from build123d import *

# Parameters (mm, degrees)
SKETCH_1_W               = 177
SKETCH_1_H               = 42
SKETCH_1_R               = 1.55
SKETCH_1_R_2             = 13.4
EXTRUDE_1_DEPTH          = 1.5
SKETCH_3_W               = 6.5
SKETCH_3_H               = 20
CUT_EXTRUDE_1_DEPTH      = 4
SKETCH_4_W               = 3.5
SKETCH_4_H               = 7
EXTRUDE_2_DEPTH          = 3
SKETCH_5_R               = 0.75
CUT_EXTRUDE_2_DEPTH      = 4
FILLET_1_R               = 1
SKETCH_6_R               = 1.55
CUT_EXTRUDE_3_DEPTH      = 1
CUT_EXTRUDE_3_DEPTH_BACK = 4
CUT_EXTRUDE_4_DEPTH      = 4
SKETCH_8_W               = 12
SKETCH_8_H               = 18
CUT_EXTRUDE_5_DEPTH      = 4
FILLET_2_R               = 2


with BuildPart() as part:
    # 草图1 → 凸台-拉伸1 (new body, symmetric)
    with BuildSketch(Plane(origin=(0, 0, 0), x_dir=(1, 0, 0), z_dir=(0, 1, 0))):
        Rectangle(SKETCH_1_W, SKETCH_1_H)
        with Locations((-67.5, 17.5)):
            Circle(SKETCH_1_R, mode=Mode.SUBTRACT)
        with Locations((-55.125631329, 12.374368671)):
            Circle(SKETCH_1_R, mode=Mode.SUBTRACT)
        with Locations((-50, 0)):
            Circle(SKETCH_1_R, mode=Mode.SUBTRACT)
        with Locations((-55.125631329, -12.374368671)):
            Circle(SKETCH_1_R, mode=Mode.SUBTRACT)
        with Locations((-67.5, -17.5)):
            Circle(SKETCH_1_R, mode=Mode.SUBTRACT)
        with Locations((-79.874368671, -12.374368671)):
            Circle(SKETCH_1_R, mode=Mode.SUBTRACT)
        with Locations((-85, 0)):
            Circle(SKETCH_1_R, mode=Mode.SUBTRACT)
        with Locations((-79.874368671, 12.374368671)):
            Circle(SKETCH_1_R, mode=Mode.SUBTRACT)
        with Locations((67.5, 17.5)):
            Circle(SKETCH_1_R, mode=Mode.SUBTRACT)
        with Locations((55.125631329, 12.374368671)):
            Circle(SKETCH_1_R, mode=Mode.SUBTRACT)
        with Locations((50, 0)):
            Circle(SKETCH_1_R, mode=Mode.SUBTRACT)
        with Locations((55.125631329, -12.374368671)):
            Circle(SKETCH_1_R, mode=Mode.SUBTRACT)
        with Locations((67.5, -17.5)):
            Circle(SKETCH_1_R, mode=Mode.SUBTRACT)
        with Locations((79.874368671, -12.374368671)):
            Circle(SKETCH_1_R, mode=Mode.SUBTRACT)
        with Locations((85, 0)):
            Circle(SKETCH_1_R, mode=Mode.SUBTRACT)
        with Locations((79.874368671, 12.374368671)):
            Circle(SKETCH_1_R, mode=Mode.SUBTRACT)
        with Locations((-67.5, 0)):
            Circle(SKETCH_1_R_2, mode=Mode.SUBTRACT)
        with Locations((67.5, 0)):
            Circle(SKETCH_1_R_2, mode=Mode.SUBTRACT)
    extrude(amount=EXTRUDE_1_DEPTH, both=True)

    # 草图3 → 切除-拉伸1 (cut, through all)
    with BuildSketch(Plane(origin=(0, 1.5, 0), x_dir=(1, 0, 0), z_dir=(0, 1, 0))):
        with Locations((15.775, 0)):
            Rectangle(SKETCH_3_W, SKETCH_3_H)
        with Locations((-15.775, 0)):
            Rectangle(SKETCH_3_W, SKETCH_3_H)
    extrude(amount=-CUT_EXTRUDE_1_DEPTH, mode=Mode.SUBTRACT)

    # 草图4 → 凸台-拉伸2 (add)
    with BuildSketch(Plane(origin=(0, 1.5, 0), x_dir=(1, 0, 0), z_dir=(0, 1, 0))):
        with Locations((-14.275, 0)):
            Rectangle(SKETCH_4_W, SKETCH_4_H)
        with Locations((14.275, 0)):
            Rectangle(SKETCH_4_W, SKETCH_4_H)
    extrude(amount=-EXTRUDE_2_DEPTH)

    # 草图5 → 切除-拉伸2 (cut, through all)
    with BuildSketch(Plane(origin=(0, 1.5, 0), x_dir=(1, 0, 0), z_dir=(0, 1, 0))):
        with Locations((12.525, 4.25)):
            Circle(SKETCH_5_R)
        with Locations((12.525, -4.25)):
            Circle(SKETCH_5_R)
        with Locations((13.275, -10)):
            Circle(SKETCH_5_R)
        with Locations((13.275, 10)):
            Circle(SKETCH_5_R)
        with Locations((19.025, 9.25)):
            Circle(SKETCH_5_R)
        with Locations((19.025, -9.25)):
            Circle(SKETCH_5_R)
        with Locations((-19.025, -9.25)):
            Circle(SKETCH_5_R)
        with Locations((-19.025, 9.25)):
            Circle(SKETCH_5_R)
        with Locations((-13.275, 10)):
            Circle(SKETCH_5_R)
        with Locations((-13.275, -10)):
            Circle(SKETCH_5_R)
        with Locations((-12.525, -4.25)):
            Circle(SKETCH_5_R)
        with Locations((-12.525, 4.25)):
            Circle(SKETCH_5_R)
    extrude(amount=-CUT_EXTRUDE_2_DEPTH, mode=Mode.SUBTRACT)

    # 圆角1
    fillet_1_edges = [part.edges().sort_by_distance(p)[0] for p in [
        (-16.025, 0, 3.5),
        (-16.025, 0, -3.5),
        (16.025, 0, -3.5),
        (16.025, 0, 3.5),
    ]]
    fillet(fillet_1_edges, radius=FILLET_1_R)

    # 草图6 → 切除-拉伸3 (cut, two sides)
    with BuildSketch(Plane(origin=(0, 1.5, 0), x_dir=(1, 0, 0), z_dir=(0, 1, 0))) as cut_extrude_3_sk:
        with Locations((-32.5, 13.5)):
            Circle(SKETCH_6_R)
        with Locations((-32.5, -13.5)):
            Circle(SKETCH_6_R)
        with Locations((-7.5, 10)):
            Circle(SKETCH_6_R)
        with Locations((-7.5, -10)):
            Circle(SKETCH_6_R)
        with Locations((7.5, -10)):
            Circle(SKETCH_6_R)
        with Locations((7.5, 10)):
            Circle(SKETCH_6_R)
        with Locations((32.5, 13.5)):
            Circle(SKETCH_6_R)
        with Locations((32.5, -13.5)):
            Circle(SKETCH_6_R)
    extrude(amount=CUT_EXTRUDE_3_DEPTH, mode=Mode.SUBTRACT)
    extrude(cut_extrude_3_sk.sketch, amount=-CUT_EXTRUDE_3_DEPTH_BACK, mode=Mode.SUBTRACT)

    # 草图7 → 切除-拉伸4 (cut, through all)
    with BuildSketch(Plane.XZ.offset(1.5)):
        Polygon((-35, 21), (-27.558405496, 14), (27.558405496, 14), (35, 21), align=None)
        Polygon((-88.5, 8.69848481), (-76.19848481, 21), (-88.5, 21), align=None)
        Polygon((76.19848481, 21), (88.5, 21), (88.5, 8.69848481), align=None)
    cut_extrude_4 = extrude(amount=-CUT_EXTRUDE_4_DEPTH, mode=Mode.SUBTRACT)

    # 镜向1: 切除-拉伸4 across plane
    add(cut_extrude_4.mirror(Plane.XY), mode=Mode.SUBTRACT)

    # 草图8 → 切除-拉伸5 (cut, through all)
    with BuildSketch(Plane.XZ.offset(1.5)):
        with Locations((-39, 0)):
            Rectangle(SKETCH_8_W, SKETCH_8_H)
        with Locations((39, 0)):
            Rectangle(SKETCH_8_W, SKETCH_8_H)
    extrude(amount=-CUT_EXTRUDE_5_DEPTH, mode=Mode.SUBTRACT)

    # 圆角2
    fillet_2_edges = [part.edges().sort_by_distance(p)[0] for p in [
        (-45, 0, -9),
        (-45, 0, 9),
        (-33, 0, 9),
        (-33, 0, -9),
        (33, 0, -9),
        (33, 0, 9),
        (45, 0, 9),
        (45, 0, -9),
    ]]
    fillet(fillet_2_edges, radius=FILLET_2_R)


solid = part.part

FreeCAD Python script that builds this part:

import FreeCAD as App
import Part
import Sketcher

V = App.Vector
Q = App.Units.Quantity


def edges_at(feature, points):
    """Names of the edges that pass closest to the given points."""
    edges = feature.Shape.Edges
    near = lambda p: min(range(len(edges)), key=lambda i: edges[i].distToShape(Part.Vertex(*p))[0])
    return sorted({f"Edge{near(p) + 1}" for p in points})

doc = App.newDocument("Part")
params = doc.addObject("Spreadsheet::Sheet", "Params")
for row, (alias, value) in enumerate([
    ("sketch1_diameter", "3.1 mm"),
    ("sketch1_diameter2", "26.8 mm"),
    ("sketch1_width", "177 mm"),
    ("sketch1_height", "42 mm"),
    ("pad1_length", "3 mm"),
    ("sketch2_height", "20 mm"),
    ("sketch2_width", "6.5 mm"),
    ("sketch3_height", "7 mm"),
    ("sketch3_width", "3.5 mm"),
    ("pad2_length", "3 mm"),
    ("sketch4_diameter", "1.5 mm"),
    ("fillet_radius", "1 mm"),
    ("sketch5_diameter", "3.1 mm"),
    ("sketch6_width", "70 mm"),
    ("sketch7_width", "12 mm"),
    ("sketch7_height", "18 mm"),
    ("fillet2_radius", "2 mm"),
], start=1):
    params.set(f"A{row}", alias)
    params.set(f"B{row}", "=" + value)
    params.setAlias(f"B{row}", alias)

body = doc.addObject("PartDesign::Body", "Body")

# Sketch on XZ plane
sketch1 = body.newObject("Sketcher::SketchObject", "Sketch")
sketch1.AttachmentSupport = (doc.getObject("XZ_Plane"), [""])
sketch1.MapMode = "FlatFace"
sketch1.addGeometry([
    Part.LineSegment(V(-88.5, -21, 0), V(-88.5, 21, 0)),  # 0
    Part.LineSegment(V(-88.5, 21, 0), V(88.5, 21, 0)),  # 1
    Part.LineSegment(V(88.5, 21, 0), V(88.5, -21, 0)),  # 2
    Part.LineSegment(V(88.5, -21, 0), V(-88.5, -21, 0)),  # 3
    Part.Circle(V(-67.5, 17.5, 0), V(0, 0, 1), 1.55),  # 4
    Part.Circle(V(-79.874369, 12.374369, 0), V(0, 0, 1), 1.55),  # 5
    Part.Circle(V(-55.125631, 12.374369, 0), V(0, 0, 1), 1.55),  # 6
    Part.Circle(V(67.5, 17.5, 0), V(0, 0, 1), 1.55),  # 7
    Part.Circle(V(55.125631, 12.374369, 0), V(0, 0, 1), 1.55),  # 8
    Part.Circle(V(79.874369, 12.374369, 0), V(0, 0, 1), 1.55),  # 9
    Part.Circle(V(-85, 0, 0), V(0, 0, 1), 1.55),  # 10
    Part.Circle(V(-67.5, 0, 0), V(0, 0, 1), 13.4),  # 11
    Part.Circle(V(-50, 0, 0), V(0, 0, 1), 1.55),  # 12
    Part.Circle(V(-79.874369, -12.374369, 0), V(0, 0, 1), 1.55),  # 13
    Part.Circle(V(-55.125631, -12.374369, 0), V(0, 0, 1), 1.55),  # 14
    Part.Circle(V(-67.5, -17.5, 0), V(0, 0, 1), 1.55),  # 15
    Part.Circle(V(50, 0, 0), V(0, 0, 1), 1.55),  # 16
    Part.Circle(V(67.5, 0, 0), V(0, 0, 1), 13.4),  # 17
    Part.Circle(V(85, 0, 0), V(0, 0, 1), 1.55),  # 18
    Part.Circle(V(55.125631, -12.374369, 0), V(0, 0, 1), 1.55),  # 19
    Part.Circle(V(79.874369, -12.374369, 0), V(0, 0, 1), 1.55),  # 20
    Part.Circle(V(67.5, -17.5, 0), V(0, 0, 1), 1.55),  # 21
], False)
sketch1.addConstraint([
    Sketcher.Constraint("Coincident", 0, 2, 1, 1),
    Sketcher.Constraint("Coincident", 1, 2, 2, 1),
    Sketcher.Constraint("Coincident", 2, 2, 3, 1),
    Sketcher.Constraint("Coincident", 3, 2, 0, 1),
    Sketcher.Constraint("Vertical", 0),
    Sketcher.Constraint("Horizontal", 1),
    Sketcher.Constraint("Vertical", 2),
    Sketcher.Constraint("Horizontal", 3),
    Sketcher.Constraint("Equal", 4, 5),
    Sketcher.Constraint("Equal", 5, 6),
    Sketcher.Constraint("Equal", 6, 7),
    Sketcher.Constraint("Equal", 7, 8),
    Sketcher.Constraint("Equal", 8, 9),
    Sketcher.Constraint("Equal", 9, 10),
    Sketcher.Constraint("Equal", 10, 12),
    Sketcher.Constraint("Equal", 12, 13),
    Sketcher.Constraint("Equal", 13, 14),
    Sketcher.Constraint("Equal", 14, 15),
    Sketcher.Constraint("Equal", 15, 16),
    Sketcher.Constraint("Equal", 11, 17),
    Sketcher.Constraint("Equal", 16, 18),
    Sketcher.Constraint("Equal", 18, 19),
    Sketcher.Constraint("Equal", 19, 20),
    Sketcher.Constraint("Equal", 20, 21),
    Sketcher.Constraint("Symmetric", 9, 3, 13, 3, -1, 1),
    Sketcher.Constraint("Symmetric", 8, 3, 14, 3, -1, 1),
    Sketcher.Constraint("Symmetric", 7, 3, 15, 3, -1, 1),
    Sketcher.Constraint("Symmetric", 12, 3, 16, 3, -1, 1),
    Sketcher.Constraint("Symmetric", 11, 3, 17, 3, -1, 1),
    Sketcher.Constraint("Symmetric", 10, 3, 18, 3, -1, 1),
    Sketcher.Constraint("Symmetric", 6, 3, 19, 3, -1, 1),
    Sketcher.Constraint("Symmetric", 5, 3, 20, 3, -1, 1),
    Sketcher.Constraint("Symmetric", 4, 3, 21, 3, -1, 1),
    Sketcher.Constraint("Symmetric", 0, 2, 2, 2, -1, 1),
    Sketcher.Constraint("Symmetric", 4, 3, 7, 3, -2),
    Sketcher.Constraint("Symmetric", 6, 3, 8, 3, -2),
    Sketcher.Constraint("Symmetric", 5, 3, 9, 3, -2),
    Sketcher.Constraint("PointOnObject", 10, 3, -1),
    Sketcher.Constraint("PointOnObject", 11, 3, -1),
    Sketcher.Constraint("PointOnObject", 12, 3, -1),
    Sketcher.Constraint("Horizontal", 5, 3, 6, 3),
    Sketcher.Constraint("Vertical", 4, 3, 11, 3),
    Sketcher.Constraint("Diameter", 4, Q("3.1 mm")),
    Sketcher.Constraint("Diameter", 11, Q("26.8 mm")),
    Sketcher.Constraint("DistanceX", 1, 1, 1, 2, Q("177 mm")),
    Sketcher.Constraint("DistanceY", 0, 1, 0, 2, Q("42 mm")),
    Sketcher.Constraint("DistanceX", 10, 3, -1, 1, Q("85 mm")),
    Sketcher.Constraint("DistanceX", 12, 3, -1, 1, Q("50 mm")),
    Sketcher.Constraint("DistanceX", 4, 3, 7, 3, Q("135 mm")),
    Sketcher.Constraint("DistanceX", 5, 3, 8, 3, Q("135 mm")),
    Sketcher.Constraint("DistanceY", -1, 1, 4, 3, Q("17.5 mm")),
    Sketcher.Constraint("DistanceX", 5, 3, -1, 1, Q("79.874369 mm")),
    Sketcher.Constraint("DistanceY", -1, 1, 5, 3, Q("12.374369 mm")),
])
sketch1.setExpression("Constraints[42]", "Params.sketch1_diameter")
sketch1.setExpression("Constraints[43]", "Params.sketch1_diameter2")
sketch1.setExpression("Constraints[44]", "Params.sketch1_width")
sketch1.setExpression("Constraints[45]", "Params.sketch1_height")
pad1 = body.newObject("PartDesign::Pad", "Pad")
pad1.Profile = sketch1
pad1.setExpression("Length", "Params.pad1_length")
pad1.Midplane = True

# Sketch on XZ plane
sketch2 = body.newObject("Sketcher::SketchObject", "Sketch001")
sketch2.AttachmentSupport = (doc.getObject("XZ_Plane"), [""])
sketch2.MapMode = "FlatFace"
sketch2.AttachmentOffset = App.Placement(V(0, 0, -1.5), App.Rotation())
sketch2.addGeometry([
    Part.LineSegment(V(12.525, -10, 0), V(12.525, 10, 0)),  # 0
    Part.LineSegment(V(12.525, 10, 0), V(19.025, 10, 0)),  # 1
    Part.LineSegment(V(19.025, 10, 0), V(19.025, -10, 0)),  # 2
    Part.LineSegment(V(19.025, -10, 0), V(12.525, -10, 0)),  # 3
    Part.LineSegment(V(-19.025, -10, 0), V(-19.025, 10, 0)),  # 4
    Part.LineSegment(V(-19.025, 10, 0), V(-12.525, 10, 0)),  # 5
    Part.LineSegment(V(-12.525, 10, 0), V(-12.525, -10, 0)),  # 6
    Part.LineSegment(V(-12.525, -10, 0), V(-19.025, -10, 0)),  # 7
], False)
sketch2.addConstraint([
    Sketcher.Constraint("Coincident", 0, 2, 1, 1),
    Sketcher.Constraint("Coincident", 1, 2, 2, 1),
    Sketcher.Constraint("Coincident", 2, 2, 3, 1),
    Sketcher.Constraint("Coincident", 3, 2, 0, 1),
    Sketcher.Constraint("Coincident", 4, 2, 5, 1),
    Sketcher.Constraint("Coincident", 5, 2, 6, 1),
    Sketcher.Constraint("Coincident", 6, 2, 7, 1),
    Sketcher.Constraint("Coincident", 7, 2, 4, 1),
    Sketcher.Constraint("Vertical", 0),
    Sketcher.Constraint("Horizontal", 1),
    Sketcher.Constraint("Vertical", 2),
    Sketcher.Constraint("Horizontal", 3),
    Sketcher.Constraint("Vertical", 4),
    Sketcher.Constraint("Horizontal", 5),
    Sketcher.Constraint("Vertical", 6),
    Sketcher.Constraint("Horizontal", 7),
    Sketcher.Constraint("Symmetric", 2, 2, 4, 2, -1, 1),
    Sketcher.Constraint("Symmetric", 0, 2, 6, 2, -1, 1),
    Sketcher.Constraint("Horizontal", 1, 2, 4, 2),
    Sketcher.Constraint("DistanceY", 0, 1, 0, 2, Q("20 mm")),
    Sketcher.Constraint("DistanceX", 1, 1, 1, 2, Q("6.5 mm")),
    Sketcher.Constraint("DistanceX", 4, 2, 0, 2, Q("31.55 mm")),
])
sketch2.setExpression("Constraints[19]", "Params.sketch2_height")
sketch2.setExpression("Constraints[20]", "Params.sketch2_width")
pocket1 = body.newObject("PartDesign::Pocket", "Pocket")
pocket1.Profile = sketch2
pocket1.Type = "ThroughAll"
pocket1.Reversed = True

# Sketch on XZ plane
sketch3 = body.newObject("Sketcher::SketchObject", "Sketch002")
sketch3.AttachmentSupport = (doc.getObject("XZ_Plane"), [""])
sketch3.MapMode = "FlatFace"
sketch3.AttachmentOffset = App.Placement(V(0, 0, -1.5), App.Rotation())
sketch3.addGeometry([
    Part.LineSegment(V(-16.025, -3.5, 0), V(-16.025, 3.5, 0)),  # 0
    Part.LineSegment(V(-16.025, 3.5, 0), V(-12.525, 3.5, 0)),  # 1
    Part.LineSegment(V(-12.525, 3.5, 0), V(-12.525, -3.5, 0)),  # 2
    Part.LineSegment(V(-12.525, -3.5, 0), V(-16.025, -3.5, 0)),  # 3
    Part.LineSegment(V(12.525, -3.5, 0), V(12.525, 3.5, 0)),  # 4
    Part.LineSegment(V(12.525, 3.5, 0), V(16.025, 3.5, 0)),  # 5
    Part.LineSegment(V(16.025, 3.5, 0), V(16.025, -3.5, 0)),  # 6
    Part.LineSegment(V(16.025, -3.5, 0), V(12.525, -3.5, 0)),  # 7
], False)
sketch3.addConstraint([
    Sketcher.Constraint("Coincident", 0, 2, 1, 1),
    Sketcher.Constraint("Coincident", 1, 2, 2, 1),
    Sketcher.Constraint("Coincident", 2, 2, 3, 1),
    Sketcher.Constraint("Coincident", 3, 2, 0, 1),
    Sketcher.Constraint("Coincident", 4, 2, 5, 1),
    Sketcher.Constraint("Coincident", 5, 2, 6, 1),
    Sketcher.Constraint("Coincident", 6, 2, 7, 1),
    Sketcher.Constraint("Coincident", 7, 2, 4, 1),
    Sketcher.Constraint("Vertical", 0),
    Sketcher.Constraint("Horizontal", 1),
    Sketcher.Constraint("Vertical", 2),
    Sketcher.Constraint("Horizontal", 3),
    Sketcher.Constraint("Vertical", 4),
    Sketcher.Constraint("Horizontal", 5),
    Sketcher.Constraint("Vertical", 6),
    Sketcher.Constraint("Horizontal", 7),
    Sketcher.Constraint("Symmetric", 2, 2, 4, 2, -1, 1),
    Sketcher.Constraint("Symmetric", 0, 2, 6, 2, -1, 1),
    Sketcher.Constraint("Horizontal", 1, 2, 4, 2),
    Sketcher.Constraint("DistanceY", 0, 1, 0, 2, Q("7 mm")),
    Sketcher.Constraint("DistanceX", 1, 1, 1, 2, Q("3.5 mm")),
    Sketcher.Constraint("DistanceX", 1, 2, 4, 2, Q("25.05 mm")),
])
sketch3.setExpression("Constraints[19]", "Params.sketch3_height")
sketch3.setExpression("Constraints[20]", "Params.sketch3_width")
pad2 = body.newObject("PartDesign::Pad", "Pad001")
pad2.Profile = sketch3
pad2.setExpression("Length", "Params.pad2_length")

# Sketch on XZ plane
sketch4 = body.newObject("Sketcher::SketchObject", "Sketch003")
sketch4.AttachmentSupport = (doc.getObject("XZ_Plane"), [""])
sketch4.MapMode = "FlatFace"
sketch4.AttachmentOffset = App.Placement(V(0, 0, -1.5), App.Rotation())
sketch4.addGeometry([
    Part.Circle(V(12.525, -4.25, 0), V(0, 0, 1), 0.75),  # 0
    Part.Circle(V(12.525, 4.25, 0), V(0, 0, 1), 0.75),  # 1
    Part.Circle(V(13.275, 10, 0), V(0, 0, 1), 0.75),  # 2
    Part.Circle(V(13.275, -10, 0), V(0, 0, 1), 0.75),  # 3
    Part.Circle(V(19.025, -9.25, 0), V(0, 0, 1), 0.75),  # 4
    Part.Circle(V(19.025, 9.25, 0), V(0, 0, 1), 0.75),  # 5
    Part.Circle(V(-19.025, 9.25, 0), V(0, 0, 1), 0.75),  # 6
    Part.Circle(V(-19.025, -9.25, 0), V(0, 0, 1), 0.75),  # 7
    Part.Circle(V(-13.275, -10, 0), V(0, 0, 1), 0.75),  # 8
    Part.Circle(V(-13.275, 10, 0), V(0, 0, 1), 0.75),  # 9
    Part.Circle(V(-12.525, 4.25, 0), V(0, 0, 1), 0.75),  # 10
    Part.Circle(V(-12.525, -4.25, 0), V(0, 0, 1), 0.75),  # 11
], False)
sketch4.addConstraint([
    Sketcher.Constraint("Equal", 0, 1),
    Sketcher.Constraint("Equal", 1, 2),
    Sketcher.Constraint("Equal", 2, 3),
    Sketcher.Constraint("Equal", 3, 4),
    Sketcher.Constraint("Equal", 4, 5),
    Sketcher.Constraint("Equal", 5, 6),
    Sketcher.Constraint("Equal", 6, 7),
    Sketcher.Constraint("Equal", 7, 8),
    Sketcher.Constraint("Equal", 8, 9),
    Sketcher.Constraint("Equal", 9, 10),
    Sketcher.Constraint("Equal", 10, 11),
    Sketcher.Constraint("Symmetric", 4, 3, 6, 3, -1, 1),
    Sketcher.Constraint("Symmetric", 5, 3, 7, 3, -1, 1),
    Sketcher.Constraint("Symmetric", 2, 3, 8, 3, -1, 1),
    Sketcher.Constraint("Symmetric", 3, 3, 9, 3, -1, 1),
    Sketcher.Constraint("Symmetric", 0, 3, 10, 3, -1, 1),
    Sketcher.Constraint("Symmetric", 1, 3, 11, 3, -1, 1),
    Sketcher.Constraint("Symmetric", 5, 3, 6, 3, -2),
    Sketcher.Constraint("Symmetric", 3, 3, 8, 3, -2),
    Sketcher.Constraint("Symmetric", 1, 3, 10, 3, -2),
    Sketcher.Constraint("Diameter", 0, Q("1.5 mm")),
    Sketcher.Constraint("DistanceY", -1, 1, 2, 3, Q("10 mm")),
    Sketcher.Constraint("DistanceY", 4, 3, 0, 3, Q("5 mm")),
    Sketcher.Constraint("DistanceY", 0, 3, 1, 3, Q("8.5 mm")),
    Sketcher.Constraint("DistanceX", 0, 3, 4, 3, Q("6.5 mm")),
    Sketcher.Constraint("DistanceX", 6, 3, 2, 3, Q("32.3 mm")),
    Sketcher.Constraint("DistanceX", 1, 3, 2, 3, Q("0.75 mm")),
])
sketch4.setExpression("Constraints[20]", "Params.sketch4_diameter")
pocket2 = body.newObject("PartDesign::Pocket", "Pocket001")
pocket2.Profile = sketch4
pocket2.Type = "ThroughAll"
pocket2.Reversed = True
doc.recompute()

fillet = body.newObject("PartDesign::Fillet", "Fillet")
fillet.Base = (pocket2, edges_at(pocket2, [
    (-16.025, 0, 3.5),
    (-16.025, 0, -3.5),
    (16.025, 0, -3.5),
    (16.025, 0, 3.5),
]))
fillet.setExpression("Radius", "Params.fillet_radius")

# Sketch on XZ plane
sketch5 = body.newObject("Sketcher::SketchObject", "Sketch004")
sketch5.AttachmentSupport = (doc.getObject("XZ_Plane"), [""])
sketch5.MapMode = "FlatFace"
sketch5.AttachmentOffset = App.Placement(V(0, 0, -1.5), App.Rotation())
sketch5.addGeometry([
    Part.Circle(V(-32.5, -13.5, 0), V(0, 0, 1), 1.55),  # 0
    Part.Circle(V(-32.5, 13.5, 0), V(0, 0, 1), 1.55),  # 1
    Part.Circle(V(-7.5, -10, 0), V(0, 0, 1), 1.55),  # 2
    Part.Circle(V(-7.5, 10, 0), V(0, 0, 1), 1.55),  # 3
    Part.Circle(V(7.5, 10, 0), V(0, 0, 1), 1.55),  # 4
    Part.Circle(V(7.5, -10, 0), V(0, 0, 1), 1.55),  # 5
    Part.Circle(V(32.5, -13.5, 0), V(0, 0, 1), 1.55),  # 6
    Part.Circle(V(32.5, 13.5, 0), V(0, 0, 1), 1.55),  # 7
], False)
sketch5.addConstraint([
    Sketcher.Constraint("Equal", 0, 1),
    Sketcher.Constraint("Equal", 1, 2),
    Sketcher.Constraint("Equal", 2, 3),
    Sketcher.Constraint("Equal", 3, 4),
    Sketcher.Constraint("Equal", 4, 5),
    Sketcher.Constraint("Equal", 5, 6),
    Sketcher.Constraint("Equal", 6, 7),
    Sketcher.Constraint("Symmetric", 2, 3, 4, 3, -1, 1),
    Sketcher.Constraint("Symmetric", 3, 3, 5, 3, -1, 1),
    Sketcher.Constraint("Symmetric", 1, 3, 6, 3, -1, 1),
    Sketcher.Constraint("Symmetric", 0, 3, 7, 3, -1, 1),
    Sketcher.Constraint("Symmetric", 3, 3, 4, 3, -2),
    Sketcher.Constraint("Symmetric", 0, 3, 6, 3, -2),
    Sketcher.Constraint("Diameter", 0, Q("3.1 mm")),
    Sketcher.Constraint("DistanceY", 2, 3, -1, 1, Q("10 mm")),
    Sketcher.Constraint("DistanceY", 0, 3, 1, 3, Q("27 mm")),
    Sketcher.Constraint("DistanceX", 0, 3, 2, 3, Q("25 mm")),
    Sketcher.Constraint("DistanceX", 3, 3, 4, 3, Q("15 mm")),
])
sketch5.setExpression("Constraints[13]", "Params.sketch5_diameter")
pocket3 = body.newObject("PartDesign::Pocket", "Pocket002")
pocket3.Profile = sketch5
pocket3.Type = "ThroughAll"
pocket3.Midplane = True

# Sketch on XZ plane
sketch6 = body.newObject("Sketcher::SketchObject", "Sketch005")
sketch6.AttachmentSupport = (doc.getObject("XZ_Plane"), [""])
sketch6.MapMode = "FlatFace"
sketch6.AttachmentOffset = App.Placement(V(0, 0, 1.5), App.Rotation())
sketch6.addGeometry([
    Part.LineSegment(V(-35, 21, 0), V(-27.558405, 14, 0)),  # 0
    Part.LineSegment(V(-27.558405, 14, 0), V(27.558405, 14, 0)),  # 1
    Part.LineSegment(V(27.558405, 14, 0), V(35, 21, 0)),  # 2
    Part.LineSegment(V(35, 21, 0), V(-35, 21, 0)),  # 3
    Part.LineSegment(V(-88.5, 8.698485, 0), V(-76.198485, 21, 0)),  # 4
    Part.LineSegment(V(-76.198485, 21, 0), V(-88.5, 21, 0)),  # 5
    Part.LineSegment(V(-88.5, 21, 0), V(-88.5, 8.698485, 0)),  # 6
    Part.LineSegment(V(88.5, 21, 0), V(76.198485, 21, 0)),  # 7
    Part.LineSegment(V(76.198485, 21, 0), V(88.5, 8.698485, 0)),  # 8
    Part.LineSegment(V(88.5, 8.698485, 0), V(88.5, 21, 0)),  # 9
], False)
sketch6.addConstraint([
    Sketcher.Constraint("Coincident", 0, 2, 1, 1),
    Sketcher.Constraint("Coincident", 1, 2, 2, 1),
    Sketcher.Constraint("Coincident", 2, 2, 3, 1),
    Sketcher.Constraint("Coincident", 3, 2, 0, 1),
    Sketcher.Constraint("Coincident", 4, 2, 5, 1),
    Sketcher.Constraint("Coincident", 5, 2, 6, 1),
    Sketcher.Constraint("Coincident", 6, 2, 4, 1),
    Sketcher.Constraint("Coincident", 7, 2, 8, 1),
    Sketcher.Constraint("Coincident", 8, 2, 9, 1),
    Sketcher.Constraint("Coincident", 9, 2, 7, 1),
    Sketcher.Constraint("Horizontal", 1),
    Sketcher.Constraint("Horizontal", 3),
    Sketcher.Constraint("Horizontal", 5),
    Sketcher.Constraint("Vertical", 6),
    Sketcher.Constraint("Horizontal", 7),
    Sketcher.Constraint("Vertical", 9),
    Sketcher.Constraint("Symmetric", 4, 2, 7, 2, -2),
    Sketcher.Constraint("Symmetric", 6, 2, 8, 2, -2),
    Sketcher.Constraint("Perpendicular", 4, 8),
    Sketcher.Constraint("Horizontal", 3, 2, 4, 2),
    Sketcher.Constraint("Equal", 0, 2),
    Sketcher.Constraint("DistanceX", 3, 2, 3, 1, Q("70 mm")),
    Sketcher.Constraint("DistanceY", -1, 1, 0, 2, Q("14 mm")),
    Sketcher.Constraint("DistanceX", -1, 1, 2, 2, Q("35 mm")),
    Sketcher.Constraint("DistanceY", -1, 1, 2, 2, Q("21 mm")),
    Sketcher.Constraint("DistanceX", 5, 2, -1, 1, Q("88.5 mm")),
    Sketcher.Constraint("DistanceX", 1, 1, 1, 2, Q("55.116811 mm")),
    Sketcher.Constraint("Distance", 4, Q("17.39697 mm")),
])
sketch6.setExpression("Constraints[21]", "Params.sketch6_width")
pocket4 = body.newObject("PartDesign::Pocket", "Pocket003")
pocket4.Profile = sketch6
pocket4.Type = "ThroughAll"
doc.recompute()

mirrored = body.newObject("PartDesign::Mirrored", "Mirrored")
mirrored.Originals = [pocket4]
mirrored.MirrorPlane = (doc.getObject("XY_Plane"), [""])
body.Tip = mirrored

# Sketch on XZ plane
sketch7 = body.newObject("Sketcher::SketchObject", "Sketch006")
sketch7.AttachmentSupport = (doc.getObject("XZ_Plane"), [""])
sketch7.MapMode = "FlatFace"
sketch7.AttachmentOffset = App.Placement(V(0, 0, 1.5), App.Rotation())
sketch7.addGeometry([
    Part.LineSegment(V(-45, 9, 0), V(-45, -9, 0)),  # 0
    Part.LineSegment(V(-45, -9, 0), V(-33, -9, 0)),  # 1
    Part.LineSegment(V(-33, -9, 0), V(-33, 9, 0)),  # 2
    Part.LineSegment(V(-33, 9, 0), V(-45, 9, 0)),  # 3
    Part.LineSegment(V(33, 9, 0), V(33, -9, 0)),  # 4
    Part.LineSegment(V(33, -9, 0), V(45, -9, 0)),  # 5
    Part.LineSegment(V(45, -9, 0), V(45, 9, 0)),  # 6
    Part.LineSegment(V(45, 9, 0), V(33, 9, 0)),  # 7
], False)
sketch7.addConstraint([
    Sketcher.Constraint("Coincident", 0, 2, 1, 1),
    Sketcher.Constraint("Coincident", 1, 2, 2, 1),
    Sketcher.Constraint("Coincident", 2, 2, 3, 1),
    Sketcher.Constraint("Coincident", 3, 2, 0, 1),
    Sketcher.Constraint("Coincident", 4, 2, 5, 1),
    Sketcher.Constraint("Coincident", 5, 2, 6, 1),
    Sketcher.Constraint("Coincident", 6, 2, 7, 1),
    Sketcher.Constraint("Coincident", 7, 2, 4, 1),
    Sketcher.Constraint("Vertical", 0),
    Sketcher.Constraint("Horizontal", 1),
    Sketcher.Constraint("Vertical", 2),
    Sketcher.Constraint("Horizontal", 3),
    Sketcher.Constraint("Vertical", 4),
    Sketcher.Constraint("Horizontal", 5),
    Sketcher.Constraint("Vertical", 6),
    Sketcher.Constraint("Horizontal", 7),
    Sketcher.Constraint("Symmetric", 2, 2, 4, 2, -1, 1),
    Sketcher.Constraint("Symmetric", 0, 2, 6, 2, -1, 1),
    Sketcher.Constraint("Horizontal", 1, 2, 4, 2),
    Sketcher.Constraint("DistanceX", 1, 1, 1, 2, Q("12 mm")),
    Sketcher.Constraint("DistanceY", 0, 2, 0, 1, Q("18 mm")),
    Sketcher.Constraint("DistanceX", 0, 2, -1, 1, Q("45 mm")),
])
sketch7.setExpression("Constraints[19]", "Params.sketch7_width")
sketch7.setExpression("Constraints[20]", "Params.sketch7_height")
pocket5 = body.newObject("PartDesign::Pocket", "Pocket004")
pocket5.Profile = sketch7
pocket5.Type = "ThroughAll"
doc.recompute()

fillet2 = body.newObject("PartDesign::Fillet", "Fillet001")
fillet2.Base = (pocket5, edges_at(pocket5, [
    (-45, 0, -9),
    (-45, 0, 9),
    (-33, 0, 9),
    (-33, 0, -9),
    (33, 0, -9),
    (33, 0, 9),
    (45, 0, 9),
    (45, 0, -9),
]))
fillet2.setExpression("Radius", "Params.fillet2_radius")

doc.recompute()
